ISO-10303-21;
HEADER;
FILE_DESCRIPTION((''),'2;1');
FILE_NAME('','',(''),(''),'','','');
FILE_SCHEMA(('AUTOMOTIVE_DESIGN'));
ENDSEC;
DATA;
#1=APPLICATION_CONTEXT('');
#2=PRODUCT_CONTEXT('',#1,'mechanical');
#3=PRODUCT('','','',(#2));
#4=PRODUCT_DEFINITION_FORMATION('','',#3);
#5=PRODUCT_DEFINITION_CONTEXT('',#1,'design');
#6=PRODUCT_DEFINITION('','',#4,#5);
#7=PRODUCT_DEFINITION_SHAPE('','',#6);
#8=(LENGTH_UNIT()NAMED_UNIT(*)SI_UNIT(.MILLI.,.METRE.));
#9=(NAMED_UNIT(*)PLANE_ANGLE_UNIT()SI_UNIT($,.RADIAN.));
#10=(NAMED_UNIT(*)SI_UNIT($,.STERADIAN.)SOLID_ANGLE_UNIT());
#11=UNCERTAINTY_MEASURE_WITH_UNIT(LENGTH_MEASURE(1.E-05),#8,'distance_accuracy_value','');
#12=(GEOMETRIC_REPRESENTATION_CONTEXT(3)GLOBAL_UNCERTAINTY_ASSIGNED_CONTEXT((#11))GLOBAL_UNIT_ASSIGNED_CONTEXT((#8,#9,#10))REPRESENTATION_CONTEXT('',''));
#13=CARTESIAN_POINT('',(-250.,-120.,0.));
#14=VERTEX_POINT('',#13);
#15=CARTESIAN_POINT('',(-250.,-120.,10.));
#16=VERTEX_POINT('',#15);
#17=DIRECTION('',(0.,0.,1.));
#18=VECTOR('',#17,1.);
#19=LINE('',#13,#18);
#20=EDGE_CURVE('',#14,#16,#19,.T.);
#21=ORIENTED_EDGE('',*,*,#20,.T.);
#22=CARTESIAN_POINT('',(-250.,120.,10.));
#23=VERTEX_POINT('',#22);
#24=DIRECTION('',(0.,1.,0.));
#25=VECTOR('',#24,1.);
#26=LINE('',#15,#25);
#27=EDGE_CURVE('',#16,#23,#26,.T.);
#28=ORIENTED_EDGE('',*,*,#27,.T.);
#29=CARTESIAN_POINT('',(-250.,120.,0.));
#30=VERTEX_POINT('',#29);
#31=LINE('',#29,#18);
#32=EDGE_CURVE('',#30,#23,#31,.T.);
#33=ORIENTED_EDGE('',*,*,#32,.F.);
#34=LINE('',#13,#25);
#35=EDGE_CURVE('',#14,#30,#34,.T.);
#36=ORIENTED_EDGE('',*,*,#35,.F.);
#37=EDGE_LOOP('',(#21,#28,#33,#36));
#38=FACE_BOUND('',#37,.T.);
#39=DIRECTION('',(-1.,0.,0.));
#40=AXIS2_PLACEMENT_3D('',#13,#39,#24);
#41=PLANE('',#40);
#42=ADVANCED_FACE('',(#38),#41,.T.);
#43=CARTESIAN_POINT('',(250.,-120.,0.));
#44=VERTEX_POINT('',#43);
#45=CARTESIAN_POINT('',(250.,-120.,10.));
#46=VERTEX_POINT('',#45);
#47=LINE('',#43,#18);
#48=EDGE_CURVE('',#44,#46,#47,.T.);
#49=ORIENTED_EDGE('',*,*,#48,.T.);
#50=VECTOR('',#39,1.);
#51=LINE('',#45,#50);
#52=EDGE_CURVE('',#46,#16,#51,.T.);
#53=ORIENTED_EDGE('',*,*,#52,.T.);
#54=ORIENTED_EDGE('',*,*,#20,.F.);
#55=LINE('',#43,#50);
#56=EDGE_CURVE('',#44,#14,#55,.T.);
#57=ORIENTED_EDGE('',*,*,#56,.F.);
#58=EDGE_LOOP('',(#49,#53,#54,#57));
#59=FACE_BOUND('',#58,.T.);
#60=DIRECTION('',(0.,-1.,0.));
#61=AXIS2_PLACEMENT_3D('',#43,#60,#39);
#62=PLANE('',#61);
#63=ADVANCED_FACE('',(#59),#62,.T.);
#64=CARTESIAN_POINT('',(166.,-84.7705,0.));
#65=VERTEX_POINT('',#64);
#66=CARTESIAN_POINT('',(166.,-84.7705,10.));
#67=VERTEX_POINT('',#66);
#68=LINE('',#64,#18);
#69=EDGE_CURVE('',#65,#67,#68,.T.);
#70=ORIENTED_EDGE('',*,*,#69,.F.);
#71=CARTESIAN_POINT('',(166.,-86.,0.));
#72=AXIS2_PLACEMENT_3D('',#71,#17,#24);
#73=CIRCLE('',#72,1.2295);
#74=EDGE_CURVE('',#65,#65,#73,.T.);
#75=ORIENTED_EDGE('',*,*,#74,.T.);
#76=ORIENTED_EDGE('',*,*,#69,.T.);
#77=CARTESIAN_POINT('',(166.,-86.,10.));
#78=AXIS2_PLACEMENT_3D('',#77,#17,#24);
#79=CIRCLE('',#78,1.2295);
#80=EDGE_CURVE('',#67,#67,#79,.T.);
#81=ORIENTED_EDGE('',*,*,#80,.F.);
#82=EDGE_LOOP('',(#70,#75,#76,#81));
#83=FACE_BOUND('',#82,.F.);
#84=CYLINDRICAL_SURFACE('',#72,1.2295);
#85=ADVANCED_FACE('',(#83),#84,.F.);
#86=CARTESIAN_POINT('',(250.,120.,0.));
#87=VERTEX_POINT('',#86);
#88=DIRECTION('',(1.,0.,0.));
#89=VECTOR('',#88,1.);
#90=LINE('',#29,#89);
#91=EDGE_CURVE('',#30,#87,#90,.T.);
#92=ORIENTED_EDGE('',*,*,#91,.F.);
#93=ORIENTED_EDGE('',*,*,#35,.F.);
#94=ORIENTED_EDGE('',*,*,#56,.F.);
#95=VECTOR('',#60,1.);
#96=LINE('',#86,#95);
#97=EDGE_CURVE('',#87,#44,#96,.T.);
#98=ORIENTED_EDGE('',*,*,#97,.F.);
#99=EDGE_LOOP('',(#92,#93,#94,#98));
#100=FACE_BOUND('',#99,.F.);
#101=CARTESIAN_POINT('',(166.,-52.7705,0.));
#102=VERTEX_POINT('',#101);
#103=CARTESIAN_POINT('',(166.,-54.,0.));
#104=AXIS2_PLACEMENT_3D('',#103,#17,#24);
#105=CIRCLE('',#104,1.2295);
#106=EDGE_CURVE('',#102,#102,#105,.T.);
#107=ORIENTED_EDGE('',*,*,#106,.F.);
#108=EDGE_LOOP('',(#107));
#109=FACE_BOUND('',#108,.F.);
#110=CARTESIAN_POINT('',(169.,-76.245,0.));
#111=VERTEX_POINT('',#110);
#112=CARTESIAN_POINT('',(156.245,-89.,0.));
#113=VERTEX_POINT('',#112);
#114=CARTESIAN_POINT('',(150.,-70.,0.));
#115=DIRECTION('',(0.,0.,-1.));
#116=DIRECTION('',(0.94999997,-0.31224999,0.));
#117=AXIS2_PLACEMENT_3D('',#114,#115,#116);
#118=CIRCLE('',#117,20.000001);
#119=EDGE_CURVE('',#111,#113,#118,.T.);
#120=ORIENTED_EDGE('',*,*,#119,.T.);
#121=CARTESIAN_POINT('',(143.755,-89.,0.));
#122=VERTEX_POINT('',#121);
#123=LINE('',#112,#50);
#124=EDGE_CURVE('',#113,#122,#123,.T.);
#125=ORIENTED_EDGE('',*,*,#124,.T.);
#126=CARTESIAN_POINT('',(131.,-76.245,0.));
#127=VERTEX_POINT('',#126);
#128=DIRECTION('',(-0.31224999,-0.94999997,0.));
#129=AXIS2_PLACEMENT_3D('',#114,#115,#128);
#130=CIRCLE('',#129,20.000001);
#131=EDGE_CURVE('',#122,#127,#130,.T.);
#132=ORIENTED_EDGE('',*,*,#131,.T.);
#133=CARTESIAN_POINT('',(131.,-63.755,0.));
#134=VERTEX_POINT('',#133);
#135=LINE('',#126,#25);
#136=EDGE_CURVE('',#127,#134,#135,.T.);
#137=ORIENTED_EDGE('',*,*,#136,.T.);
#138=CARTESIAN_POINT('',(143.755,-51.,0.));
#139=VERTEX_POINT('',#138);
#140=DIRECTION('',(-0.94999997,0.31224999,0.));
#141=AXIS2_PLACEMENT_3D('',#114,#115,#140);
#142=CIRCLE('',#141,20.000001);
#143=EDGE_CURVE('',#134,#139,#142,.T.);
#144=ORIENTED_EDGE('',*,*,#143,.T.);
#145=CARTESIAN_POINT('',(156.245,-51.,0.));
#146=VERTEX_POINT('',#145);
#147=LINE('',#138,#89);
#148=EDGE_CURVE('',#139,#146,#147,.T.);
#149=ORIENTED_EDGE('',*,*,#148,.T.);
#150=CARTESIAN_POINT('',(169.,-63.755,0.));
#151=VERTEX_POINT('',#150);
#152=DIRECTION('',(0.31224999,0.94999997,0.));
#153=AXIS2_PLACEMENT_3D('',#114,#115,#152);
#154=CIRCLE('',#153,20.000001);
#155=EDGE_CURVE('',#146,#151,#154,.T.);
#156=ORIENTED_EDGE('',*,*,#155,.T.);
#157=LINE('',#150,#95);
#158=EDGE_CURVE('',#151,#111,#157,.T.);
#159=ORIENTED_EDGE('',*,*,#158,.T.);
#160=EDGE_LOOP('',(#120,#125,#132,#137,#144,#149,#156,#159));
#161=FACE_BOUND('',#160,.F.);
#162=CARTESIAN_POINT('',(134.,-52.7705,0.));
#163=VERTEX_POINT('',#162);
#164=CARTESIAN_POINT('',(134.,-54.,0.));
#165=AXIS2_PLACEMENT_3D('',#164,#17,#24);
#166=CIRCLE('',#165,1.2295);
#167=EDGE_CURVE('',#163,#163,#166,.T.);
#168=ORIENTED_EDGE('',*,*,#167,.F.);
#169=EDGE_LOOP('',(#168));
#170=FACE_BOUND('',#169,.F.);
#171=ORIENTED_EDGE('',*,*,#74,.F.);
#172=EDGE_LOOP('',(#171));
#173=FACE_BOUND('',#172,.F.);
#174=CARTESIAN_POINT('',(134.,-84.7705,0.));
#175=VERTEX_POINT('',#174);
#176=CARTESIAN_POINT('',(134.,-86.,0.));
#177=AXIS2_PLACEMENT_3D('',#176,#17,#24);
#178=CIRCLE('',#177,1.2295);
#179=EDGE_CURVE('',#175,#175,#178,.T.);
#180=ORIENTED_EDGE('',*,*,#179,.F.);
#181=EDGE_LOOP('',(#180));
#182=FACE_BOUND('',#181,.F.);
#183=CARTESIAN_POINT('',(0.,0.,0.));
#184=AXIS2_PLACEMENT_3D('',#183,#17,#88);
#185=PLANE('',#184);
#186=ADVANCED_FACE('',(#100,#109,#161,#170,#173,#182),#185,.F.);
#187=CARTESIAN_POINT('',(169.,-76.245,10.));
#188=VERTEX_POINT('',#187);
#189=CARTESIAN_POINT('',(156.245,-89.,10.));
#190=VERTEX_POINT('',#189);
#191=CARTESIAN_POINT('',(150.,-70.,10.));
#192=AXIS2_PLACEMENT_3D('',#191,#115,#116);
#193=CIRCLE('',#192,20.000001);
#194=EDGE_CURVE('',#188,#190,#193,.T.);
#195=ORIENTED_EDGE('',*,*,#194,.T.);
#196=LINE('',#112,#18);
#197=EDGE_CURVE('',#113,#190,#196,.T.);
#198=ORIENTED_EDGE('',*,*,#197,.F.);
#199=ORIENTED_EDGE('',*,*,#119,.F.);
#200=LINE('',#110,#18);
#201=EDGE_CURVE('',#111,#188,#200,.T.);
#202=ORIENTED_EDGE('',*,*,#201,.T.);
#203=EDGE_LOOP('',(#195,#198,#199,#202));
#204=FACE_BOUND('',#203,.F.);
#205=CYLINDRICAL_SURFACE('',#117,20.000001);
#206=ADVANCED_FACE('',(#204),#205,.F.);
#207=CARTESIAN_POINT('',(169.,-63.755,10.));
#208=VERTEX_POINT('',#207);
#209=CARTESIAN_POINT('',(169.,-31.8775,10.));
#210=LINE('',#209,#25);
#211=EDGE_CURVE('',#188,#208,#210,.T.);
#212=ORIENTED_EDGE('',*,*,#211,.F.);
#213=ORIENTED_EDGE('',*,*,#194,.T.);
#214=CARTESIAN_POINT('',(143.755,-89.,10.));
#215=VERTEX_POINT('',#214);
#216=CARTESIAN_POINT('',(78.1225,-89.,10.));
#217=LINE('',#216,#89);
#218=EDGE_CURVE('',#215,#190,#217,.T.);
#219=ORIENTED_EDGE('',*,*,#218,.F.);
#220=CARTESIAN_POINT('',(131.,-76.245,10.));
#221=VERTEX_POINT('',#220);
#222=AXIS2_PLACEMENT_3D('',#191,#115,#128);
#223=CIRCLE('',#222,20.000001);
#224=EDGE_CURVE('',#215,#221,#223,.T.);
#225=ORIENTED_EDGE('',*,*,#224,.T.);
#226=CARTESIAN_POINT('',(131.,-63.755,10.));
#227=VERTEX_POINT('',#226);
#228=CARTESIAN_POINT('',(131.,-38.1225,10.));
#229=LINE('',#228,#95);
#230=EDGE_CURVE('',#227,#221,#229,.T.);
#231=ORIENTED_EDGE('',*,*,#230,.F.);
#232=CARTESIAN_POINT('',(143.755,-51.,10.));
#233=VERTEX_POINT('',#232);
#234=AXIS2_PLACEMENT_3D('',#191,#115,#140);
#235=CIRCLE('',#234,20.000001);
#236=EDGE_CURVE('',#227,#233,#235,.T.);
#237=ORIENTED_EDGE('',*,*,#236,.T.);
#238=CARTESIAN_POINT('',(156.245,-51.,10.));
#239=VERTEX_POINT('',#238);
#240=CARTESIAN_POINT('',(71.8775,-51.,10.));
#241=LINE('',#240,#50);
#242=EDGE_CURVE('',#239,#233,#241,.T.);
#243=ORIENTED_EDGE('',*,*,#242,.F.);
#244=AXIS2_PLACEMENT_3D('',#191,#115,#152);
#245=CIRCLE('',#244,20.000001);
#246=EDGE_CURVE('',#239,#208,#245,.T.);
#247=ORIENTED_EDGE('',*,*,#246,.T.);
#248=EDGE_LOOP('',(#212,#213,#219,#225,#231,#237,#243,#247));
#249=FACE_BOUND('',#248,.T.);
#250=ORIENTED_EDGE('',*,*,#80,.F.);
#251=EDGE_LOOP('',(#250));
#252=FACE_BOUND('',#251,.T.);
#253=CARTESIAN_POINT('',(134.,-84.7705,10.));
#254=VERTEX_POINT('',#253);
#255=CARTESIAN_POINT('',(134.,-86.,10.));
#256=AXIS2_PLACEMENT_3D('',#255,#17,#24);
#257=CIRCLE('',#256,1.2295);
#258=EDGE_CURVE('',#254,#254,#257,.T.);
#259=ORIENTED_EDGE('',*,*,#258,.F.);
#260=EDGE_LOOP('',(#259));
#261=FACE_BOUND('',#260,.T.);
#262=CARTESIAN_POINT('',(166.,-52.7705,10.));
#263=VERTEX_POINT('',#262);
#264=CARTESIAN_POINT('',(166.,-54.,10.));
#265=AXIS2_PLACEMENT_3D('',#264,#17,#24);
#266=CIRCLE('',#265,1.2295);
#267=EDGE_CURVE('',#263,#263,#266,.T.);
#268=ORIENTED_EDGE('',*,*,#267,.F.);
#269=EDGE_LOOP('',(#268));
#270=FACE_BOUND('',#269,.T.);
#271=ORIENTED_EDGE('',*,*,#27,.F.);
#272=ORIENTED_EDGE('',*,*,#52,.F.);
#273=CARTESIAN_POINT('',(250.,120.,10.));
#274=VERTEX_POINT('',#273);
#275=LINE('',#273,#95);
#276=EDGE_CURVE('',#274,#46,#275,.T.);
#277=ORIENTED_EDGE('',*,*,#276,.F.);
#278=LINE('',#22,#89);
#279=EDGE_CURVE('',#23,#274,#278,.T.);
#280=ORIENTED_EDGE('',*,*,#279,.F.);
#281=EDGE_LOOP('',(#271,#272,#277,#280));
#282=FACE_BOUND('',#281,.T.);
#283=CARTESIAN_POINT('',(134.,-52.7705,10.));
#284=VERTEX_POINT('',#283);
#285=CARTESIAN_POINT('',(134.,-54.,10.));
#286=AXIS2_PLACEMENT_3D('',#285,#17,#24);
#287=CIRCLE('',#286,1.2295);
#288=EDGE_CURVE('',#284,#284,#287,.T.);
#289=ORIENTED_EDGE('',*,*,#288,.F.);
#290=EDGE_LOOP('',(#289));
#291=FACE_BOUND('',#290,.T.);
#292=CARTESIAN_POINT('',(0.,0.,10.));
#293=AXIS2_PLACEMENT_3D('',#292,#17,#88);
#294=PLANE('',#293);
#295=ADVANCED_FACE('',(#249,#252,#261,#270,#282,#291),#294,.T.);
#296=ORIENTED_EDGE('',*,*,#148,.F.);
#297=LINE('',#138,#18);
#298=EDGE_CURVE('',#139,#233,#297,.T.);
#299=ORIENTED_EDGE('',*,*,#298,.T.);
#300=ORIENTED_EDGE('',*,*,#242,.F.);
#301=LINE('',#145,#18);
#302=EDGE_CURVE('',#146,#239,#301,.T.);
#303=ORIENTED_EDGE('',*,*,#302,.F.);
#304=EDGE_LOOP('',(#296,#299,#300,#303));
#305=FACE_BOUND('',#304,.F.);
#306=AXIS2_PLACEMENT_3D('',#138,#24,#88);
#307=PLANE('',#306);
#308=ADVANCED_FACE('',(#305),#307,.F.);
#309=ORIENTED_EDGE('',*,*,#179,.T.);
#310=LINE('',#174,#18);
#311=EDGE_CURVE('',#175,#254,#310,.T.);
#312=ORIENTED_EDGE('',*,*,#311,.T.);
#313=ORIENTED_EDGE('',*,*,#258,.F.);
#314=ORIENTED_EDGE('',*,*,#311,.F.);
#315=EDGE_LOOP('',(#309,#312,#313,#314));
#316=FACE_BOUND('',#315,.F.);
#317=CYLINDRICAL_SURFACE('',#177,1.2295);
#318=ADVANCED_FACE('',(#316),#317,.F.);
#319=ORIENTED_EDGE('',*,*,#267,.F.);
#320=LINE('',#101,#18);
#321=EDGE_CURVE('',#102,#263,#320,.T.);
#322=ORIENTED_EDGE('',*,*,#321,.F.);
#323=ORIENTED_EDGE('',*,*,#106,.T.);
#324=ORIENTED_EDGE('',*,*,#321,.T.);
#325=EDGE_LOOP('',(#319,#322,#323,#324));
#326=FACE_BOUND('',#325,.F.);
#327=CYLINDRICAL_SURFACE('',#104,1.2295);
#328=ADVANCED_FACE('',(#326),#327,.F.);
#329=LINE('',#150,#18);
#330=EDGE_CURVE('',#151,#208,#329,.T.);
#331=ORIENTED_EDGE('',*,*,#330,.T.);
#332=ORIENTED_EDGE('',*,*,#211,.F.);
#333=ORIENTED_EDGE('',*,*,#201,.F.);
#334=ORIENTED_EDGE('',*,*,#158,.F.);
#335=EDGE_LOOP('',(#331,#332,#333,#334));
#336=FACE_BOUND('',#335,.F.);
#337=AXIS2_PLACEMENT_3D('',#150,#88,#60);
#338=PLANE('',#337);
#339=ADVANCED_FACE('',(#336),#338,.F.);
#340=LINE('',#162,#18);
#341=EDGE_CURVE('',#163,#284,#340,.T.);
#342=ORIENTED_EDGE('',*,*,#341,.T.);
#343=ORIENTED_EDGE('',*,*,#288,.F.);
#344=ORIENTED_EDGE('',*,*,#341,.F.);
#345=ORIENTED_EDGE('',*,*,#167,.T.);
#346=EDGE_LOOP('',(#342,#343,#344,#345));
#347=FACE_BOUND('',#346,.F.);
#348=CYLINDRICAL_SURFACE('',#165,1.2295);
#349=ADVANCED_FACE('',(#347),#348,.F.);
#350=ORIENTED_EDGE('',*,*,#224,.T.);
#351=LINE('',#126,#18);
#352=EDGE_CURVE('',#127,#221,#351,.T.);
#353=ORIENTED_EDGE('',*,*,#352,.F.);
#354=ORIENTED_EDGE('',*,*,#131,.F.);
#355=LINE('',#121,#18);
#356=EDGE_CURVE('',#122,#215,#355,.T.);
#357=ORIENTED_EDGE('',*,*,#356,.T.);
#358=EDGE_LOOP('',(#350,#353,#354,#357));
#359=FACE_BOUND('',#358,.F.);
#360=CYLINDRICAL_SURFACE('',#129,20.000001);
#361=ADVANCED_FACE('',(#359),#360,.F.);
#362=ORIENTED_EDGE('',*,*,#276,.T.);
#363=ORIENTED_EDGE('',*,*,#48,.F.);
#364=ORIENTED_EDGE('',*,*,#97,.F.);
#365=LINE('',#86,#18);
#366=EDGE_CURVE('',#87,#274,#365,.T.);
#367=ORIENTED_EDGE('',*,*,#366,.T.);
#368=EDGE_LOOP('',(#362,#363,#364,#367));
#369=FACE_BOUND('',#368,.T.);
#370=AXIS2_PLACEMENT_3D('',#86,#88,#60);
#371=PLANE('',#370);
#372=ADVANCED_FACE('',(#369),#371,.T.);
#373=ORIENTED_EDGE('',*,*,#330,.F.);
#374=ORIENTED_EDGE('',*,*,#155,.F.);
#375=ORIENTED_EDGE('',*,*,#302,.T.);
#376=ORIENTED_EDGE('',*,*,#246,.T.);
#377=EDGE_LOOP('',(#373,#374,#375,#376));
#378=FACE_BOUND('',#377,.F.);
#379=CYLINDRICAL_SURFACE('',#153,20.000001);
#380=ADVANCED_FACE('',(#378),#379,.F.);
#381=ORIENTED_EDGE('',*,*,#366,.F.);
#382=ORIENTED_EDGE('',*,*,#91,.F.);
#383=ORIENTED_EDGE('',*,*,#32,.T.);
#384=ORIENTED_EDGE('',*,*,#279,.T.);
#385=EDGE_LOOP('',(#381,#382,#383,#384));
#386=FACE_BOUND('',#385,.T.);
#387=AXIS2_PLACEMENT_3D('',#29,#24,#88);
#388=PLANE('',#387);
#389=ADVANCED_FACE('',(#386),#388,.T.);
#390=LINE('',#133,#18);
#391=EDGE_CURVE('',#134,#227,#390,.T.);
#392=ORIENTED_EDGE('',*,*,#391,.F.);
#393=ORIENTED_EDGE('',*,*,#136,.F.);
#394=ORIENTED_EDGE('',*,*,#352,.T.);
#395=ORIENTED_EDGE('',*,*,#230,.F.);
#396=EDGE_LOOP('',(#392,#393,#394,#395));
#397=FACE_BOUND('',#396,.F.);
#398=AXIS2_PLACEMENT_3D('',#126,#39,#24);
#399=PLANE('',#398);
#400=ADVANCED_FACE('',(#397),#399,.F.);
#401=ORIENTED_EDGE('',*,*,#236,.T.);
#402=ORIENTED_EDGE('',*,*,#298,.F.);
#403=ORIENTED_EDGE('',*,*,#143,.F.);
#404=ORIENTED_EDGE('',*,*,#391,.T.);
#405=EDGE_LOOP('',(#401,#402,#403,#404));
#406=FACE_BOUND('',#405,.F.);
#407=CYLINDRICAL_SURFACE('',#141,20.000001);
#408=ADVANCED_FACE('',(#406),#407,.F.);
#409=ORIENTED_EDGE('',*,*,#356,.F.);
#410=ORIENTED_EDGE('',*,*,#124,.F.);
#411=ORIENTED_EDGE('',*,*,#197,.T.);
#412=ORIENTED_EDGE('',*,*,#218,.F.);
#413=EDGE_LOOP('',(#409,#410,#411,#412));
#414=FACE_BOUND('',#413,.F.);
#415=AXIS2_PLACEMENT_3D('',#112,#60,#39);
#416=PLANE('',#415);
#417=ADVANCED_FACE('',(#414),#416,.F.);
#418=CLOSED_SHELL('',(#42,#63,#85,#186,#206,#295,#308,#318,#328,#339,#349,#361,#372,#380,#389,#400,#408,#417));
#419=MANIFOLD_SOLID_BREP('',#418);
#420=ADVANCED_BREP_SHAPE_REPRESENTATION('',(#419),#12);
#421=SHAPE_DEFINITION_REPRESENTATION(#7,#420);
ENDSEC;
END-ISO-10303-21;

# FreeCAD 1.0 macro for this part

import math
import FreeCAD as App
import Part
import Sketcher

V = App.Vector
Q = App.Units.Quantity


def add_polygon(sketch, points):
    """Adds a closed chain of lines whose ends are joined by coincident constraints."""
    first, n = sketch.GeometryCount, len(points)
    for a, b in zip(points, points[1:] + points[:1]):
        sketch.addGeometry(Part.LineSegment(App.Vector(*a, 0), App.Vector(*b, 0)), False)
    for i in range(n):
        sketch.addConstraint(Sketcher.Constraint("Coincident", first + i, 2, first + (i + 1) % n, 1))

doc = App.newDocument("Part")
params = doc.addObject("Spreadsheet::Sheet", "Params")
for row, (alias, value) in enumerate([
    ("sketch1_width", "500 mm"),
    ("sketch1_height", "240 mm"),
    ("pad1_length", "10 mm"),
    ("sketch2_radius", "20 mm"),
    ("hole_diameter", "2.459 mm"),
], start=1):
    params.set(f"A{row}", alias)
    params.set(f"B{row}", "=" + value)
    params.setAlias(f"B{row}", alias)

body = doc.addObject("PartDesign::Body", "Body")

# Sketch on XY plane
sketch1 = body.newObject("Sketcher::SketchObject", "Sketch")
sketch1.AttachmentSupport = (doc.getObject("XY_Plane"), [""])
sketch1.MapMode = "FlatFace"
add_polygon(sketch1, [(250, 120), (-250, 120), (-250, -120), (250, -120)])  # lines 0-3
sketch1.addConstraint([
    Sketcher.Constraint("Horizontal", 0),
    Sketcher.Constraint("Vertical", 1),
    Sketcher.Constraint("Horizontal", 2),
    Sketcher.Constraint("Vertical", 3),
    Sketcher.Constraint("Symmetric", 0, 2, 2, 2, -1, 1),
    Sketcher.Constraint("DistanceX", 0, 2, 0, 1, Q("500 mm")),
    Sketcher.Constraint("DistanceY", 1, 2, 1, 1, Q("240 mm")),
])
sketch1.setExpression("Constraints[9]", "Params.sketch1_width")
sketch1.setExpression("Constraints[10]", "Params.sketch1_height")
pad1 = body.newObject("PartDesign::Pad", "Pad")
pad1.Profile = sketch1
pad1.setExpression("Length", "Params.pad1_length")

# Sketch on XY plane
sketch2 = body.newObject("Sketcher::SketchObject", "Sketch001")
sketch2.AttachmentSupport = (doc.getObject("XY_Plane"), [""])
sketch2.MapMode = "FlatFace"
sketch2.addGeometry([
    Part.ArcOfCircle(Part.Circle(V(150, -70, 0), V(0, 0, 1), 20), math.radians(-72), math.radians(-18)),  # 0
    Part.LineSegment(V(156, -89, 0), V(144, -89, 0)),  # 1
    Part.ArcOfCircle(Part.Circle(V(150, -70, 0), V(0, 0, 1), 20), math.radians(-162), math.radians(-108)),  # 2
    Part.LineSegment(V(131, -76, 0), V(131, -64, 0)),  # 3
    Part.ArcOfCircle(Part.Circle(V(150, -70, 0), V(0, 0, 1), 20), math.radians(108), math.radians(162)),  # 4
    Part.LineSegment(V(144, -51, 0), V(156, -51, 0)),  # 5
    Part.ArcOfCircle(Part.Circle(V(150, -70, 0), V(0, 0, 1), 20), math.radians(18), math.radians(72)),  # 6
    Part.LineSegment(V(169, -64, 0), V(169, -76, 0)),  # 7
], False)
sketch2.addConstraint([
    Sketcher.Constraint("Coincident", 0, 1, 1, 1),
    Sketcher.Constraint("Coincident", 1, 2, 2, 2),
    Sketcher.Constraint("Coincident", 2, 1, 3, 1),
    Sketcher.Constraint("Coincident", 3, 2, 4, 2),
    Sketcher.Constraint("Coincident", 4, 1, 5, 1),
    Sketcher.Constraint("Coincident", 5, 2, 6, 2),
    Sketcher.Constraint("Coincident", 6, 1, 7, 1),
    Sketcher.Constraint("Coincident", 7, 2, 0, 2),
    Sketcher.Constraint("Horizontal", 1),
    Sketcher.Constraint("Vertical", 3),
    Sketcher.Constraint("Horizontal", 5),
    Sketcher.Constraint("Vertical", 7),
    Sketcher.Constraint("Coincident", 2, 3, 0, 3),
    Sketcher.Constraint("Coincident", 4, 3, 0, 3),
    Sketcher.Constraint("Coincident", 6, 3, 0, 3),
    Sketcher.Constraint("Equal", 0, 2),
    Sketcher.Constraint("Equal", 2, 4),
    Sketcher.Constraint("Equal", 4, 6),
    Sketcher.Constraint("Horizontal", 3, 2, 6, 1),
    Sketcher.Constraint("Vertical", 1, 2, 4, 1),
    Sketcher.Constraint("Equal", 5, 3),
    Sketcher.Constraint("Radius", 0, Q("20 mm")),
    Sketcher.Constraint("DistanceX", -1, 1, 0, 3, Q("150 mm")),
    Sketcher.Constraint("DistanceY", 0, 3, -1, 1, Q("70 mm")),
    Sketcher.Constraint("DistanceY", 0, 1, -1, 1, Q("89 mm")),
])
sketch2.setExpression("Constraints[21]", "Params.sketch2_radius")
pocket1 = body.newObject("PartDesign::Pocket", "Pocket")
pocket1.Profile = sketch2
pocket1.Type = "ThroughAll"
pocket1.Reversed = True

# Sketch on XY plane
sketch3 = body.newObject("Sketcher::SketchObject", "Sketch002")
sketch3.AttachmentSupport = (doc.getObject("XY_Plane"), [""])
sketch3.MapMode = "FlatFace"
sketch3.addGeometry([
    Part.Circle(V(134, -54, 0), V(0, 0, 1), 1.2),
    Part.Circle(V(134, -86, 0), V(0, 0, 1), 1.2),
    Part.Circle(V(166, -86, 0), V(0, 0, 1), 1.2),
    Part.Circle(V(166, -54, 0), V(0, 0, 1), 1.2),
], False)
sketch3.addConstraint([
    Sketcher.Constraint("Equal", 0, 1),
    Sketcher.Constraint("Equal", 1, 2),
    Sketcher.Constraint("Equal", 2, 3),
    Sketcher.Constraint("Horizontal", 1, 3, 2, 3),
    Sketcher.Constraint("Horizontal", 0, 3, 3, 3),
    Sketcher.Constraint("Vertical", 0, 3, 1, 3),
    Sketcher.Constraint("Vertical", 2, 3, 3, 3),
    Sketcher.Constraint("Diameter", 0, Q("2.459 mm")),
    Sketcher.Constraint("DistanceX", -1, 1, 0, 3, Q("134 mm")),
    Sketcher.Constraint("DistanceY", 0, 3, -1, 1, Q("54 mm")),
    Sketcher.Constraint("DistanceY", 1, 3, -1, 1, Q("86 mm")),
    Sketcher.Constraint("DistanceX", -1, 1, 2, 3, Q("166 mm")),
])
doc.recompute()
hole = body.newObject("PartDesign::Hole", "Hole")
hole.Profile = sketch3
hole.ThreadType = "None"
hole.setExpression("Diameter", "Params.hole_diameter")
hole.DepthType = "ThroughAll"
hole.Reversed = True

doc.recompute()
